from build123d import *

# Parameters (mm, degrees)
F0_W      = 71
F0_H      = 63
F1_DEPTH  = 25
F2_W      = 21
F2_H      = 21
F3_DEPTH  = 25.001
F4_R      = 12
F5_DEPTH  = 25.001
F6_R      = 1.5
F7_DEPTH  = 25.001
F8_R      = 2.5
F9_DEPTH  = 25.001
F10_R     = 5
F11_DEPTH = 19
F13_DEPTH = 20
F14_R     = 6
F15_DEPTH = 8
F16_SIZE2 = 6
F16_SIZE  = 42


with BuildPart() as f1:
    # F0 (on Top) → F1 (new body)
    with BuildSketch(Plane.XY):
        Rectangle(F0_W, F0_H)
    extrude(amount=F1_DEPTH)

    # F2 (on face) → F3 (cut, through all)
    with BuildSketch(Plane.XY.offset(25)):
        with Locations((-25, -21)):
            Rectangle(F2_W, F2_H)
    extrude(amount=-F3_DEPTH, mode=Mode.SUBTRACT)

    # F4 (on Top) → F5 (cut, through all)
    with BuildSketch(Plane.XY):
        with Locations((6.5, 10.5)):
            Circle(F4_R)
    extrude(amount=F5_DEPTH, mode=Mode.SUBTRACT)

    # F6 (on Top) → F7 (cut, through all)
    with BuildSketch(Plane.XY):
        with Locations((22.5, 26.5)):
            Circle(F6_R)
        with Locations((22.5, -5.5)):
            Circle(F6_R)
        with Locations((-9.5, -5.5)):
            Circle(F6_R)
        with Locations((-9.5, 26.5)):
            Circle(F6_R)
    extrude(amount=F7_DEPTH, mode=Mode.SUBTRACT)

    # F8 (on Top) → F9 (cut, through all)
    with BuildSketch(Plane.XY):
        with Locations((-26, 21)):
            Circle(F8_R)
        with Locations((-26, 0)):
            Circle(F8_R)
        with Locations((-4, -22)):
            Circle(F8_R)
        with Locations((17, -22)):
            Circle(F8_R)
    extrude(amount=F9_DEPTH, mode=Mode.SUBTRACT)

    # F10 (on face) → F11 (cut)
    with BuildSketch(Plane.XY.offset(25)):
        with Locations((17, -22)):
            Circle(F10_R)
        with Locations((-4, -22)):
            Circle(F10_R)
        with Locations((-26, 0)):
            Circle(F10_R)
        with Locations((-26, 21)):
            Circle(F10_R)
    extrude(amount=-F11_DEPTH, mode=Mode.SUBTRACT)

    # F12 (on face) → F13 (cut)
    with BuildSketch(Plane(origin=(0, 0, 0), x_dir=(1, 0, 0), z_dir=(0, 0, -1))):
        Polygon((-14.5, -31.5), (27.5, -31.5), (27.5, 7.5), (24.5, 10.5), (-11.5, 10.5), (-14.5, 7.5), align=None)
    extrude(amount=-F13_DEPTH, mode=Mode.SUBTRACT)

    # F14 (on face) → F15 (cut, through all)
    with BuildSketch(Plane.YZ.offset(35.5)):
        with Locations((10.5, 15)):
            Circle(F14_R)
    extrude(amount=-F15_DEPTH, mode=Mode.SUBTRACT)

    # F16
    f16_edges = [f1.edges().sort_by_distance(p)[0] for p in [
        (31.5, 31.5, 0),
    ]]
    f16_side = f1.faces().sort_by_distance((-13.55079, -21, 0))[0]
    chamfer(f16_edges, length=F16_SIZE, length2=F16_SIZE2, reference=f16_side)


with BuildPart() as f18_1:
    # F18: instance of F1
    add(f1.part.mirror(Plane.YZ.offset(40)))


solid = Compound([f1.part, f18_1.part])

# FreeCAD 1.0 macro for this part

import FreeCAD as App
import Part
import Sketcher
from FreeCAD import Vector
Q = App.Units.Quantity


def edges_at(feature, points):
    """Names of the edges that pass closest to the given points."""
    edges = feature.Shape.Edges
    near = lambda p: min(range(len(edges)), key=lambda i: edges[i].distToShape(Part.Vertex(*p))[0])
    return sorted({f"Edge{near(p) + 1}" for p in points})

doc = App.newDocument("Part")
body = doc.addObject("PartDesign::Body", "Body")

sketch1 = body.newObject("Sketcher::SketchObject", "Sketch")
sketch1.AttachmentSupport = (doc.getObject("XY_Plane"), [""])
sketch1.MapMode = "FlatFace"
sketch1.addGeometry([
    Part.LineSegment(Vector(-36, 32, 0), Vector(-36, -32, 0)),
    Part.LineSegment(Vector(-36, -32, 0), Vector(36, -32, 0)),
    Part.LineSegment(Vector(36, -32, 0), Vector(36, 32, 0)),
    Part.LineSegment(Vector(36, 32, 0), Vector(-36, 32, 0)),
], False)
sketch1.addConstraint([
    Sketcher.Constraint("Coincident", 0, 2, 1, 1),
    Sketcher.Constraint("Coincident", 1, 2, 2, 1),
    Sketcher.Constraint("Coincident", 2, 2, 3, 1),
    Sketcher.Constraint("Coincident", 3, 2, 0, 1),
    Sketcher.Constraint("Vertical", 0),
    Sketcher.Constraint("Horizontal", 1),
    Sketcher.Constraint("Vertical", 2),
    Sketcher.Constraint("Horizontal", 3),
    Sketcher.Constraint("Symmetric", 0, 2, 2, 2, -1, 1),
    Sketcher.Constraint("DistanceX", 1, 1, 1, 2, Q("71 mm")),
    Sketcher.Constraint("DistanceY", 0, 2, 0, 1, Q("63 mm")),
])
pad1 = body.newObject("PartDesign::Pad", "Pad")
pad1.Profile = sketch1
pad1.Length = 25

sketch2 = body.newObject("Sketcher::SketchObject", "Sketch001")
sketch2.AttachmentSupport = (doc.getObject("XY_Plane"), [""])
sketch2.MapMode = "FlatFace"
sketch2.AttachmentOffset = App.Placement(Vector(0, 0, 25), App.Rotation())
sketch2.addGeometry([
    Part.LineSegment(Vector(-36, -10, 0), Vector(-36, -32, 0)),
    Part.LineSegment(Vector(-36, -32, 0), Vector(-14, -32, 0)),
    Part.LineSegment(Vector(-14, -32, 0), Vector(-14, -10, 0)),
    Part.LineSegment(Vector(-14, -10, 0), Vector(-36, -10, 0)),
], False)
sketch2.addConstraint([
    Sketcher.Constraint("Coincident", 0, 2, 1, 1),
    Sketcher.Constraint("Coincident", 1, 2, 2, 1),
    Sketcher.Constraint("Coincident", 2, 2, 3, 1),
    Sketcher.Constraint("Coincident", 3, 2, 0, 1),
    Sketcher.Constraint("Vertical", 0),
    Sketcher.Constraint("Horizontal", 1),
    Sketcher.Constraint("Vertical", 2),
    Sketcher.Constraint("Horizontal", 3),
    Sketcher.Constraint("Equal", 3, 0),
    Sketcher.Constraint("DistanceX", 1, 1, 1, 2, Q("21 mm")),
    Sketcher.Constraint("DistanceX", 0, 2, -1, 1, Q("35.5 mm")),
    Sketcher.Constraint("DistanceY", 0, 2, -1, 1, Q("31.5 mm")),
])
pocket1 = body.newObject("PartDesign::Pocket", "Pocket")
pocket1.Profile = sketch2
pocket1.Type = "ThroughAll"

sketch3 = body.newObject("Sketcher::SketchObject", "Sketch002")
sketch3.AttachmentSupport = (doc.getObject("XY_Plane"), [""])
sketch3.MapMode = "FlatFace"
sketch3.addGeometry(Part.Circle(Vector(6, 10, 0), Vector(0, 0, 1), 12), False)
sketch3.addConstraint([
    Sketcher.Constraint("Diameter", 0, Q("24 mm")),
    Sketcher.Constraint("DistanceX", -1, 1, 0, 3, Q("6.5 mm")),
    Sketcher.Constraint("DistanceY", -1, 1, 0, 3, Q("10.5 mm")),
])
pocket2 = body.newObject("PartDesign::Pocket", "Pocket001")
pocket2.Profile = sketch3
pocket2.Type = "ThroughAll"
pocket2.Reversed = True

sketch4 = body.newObject("Sketcher::SketchObject", "Sketch003")
sketch4.AttachmentSupport = (doc.getObject("XY_Plane"), [""])
sketch4.MapMode = "FlatFace"
sketch4.addGeometry([
    Part.Circle(Vector(22.5, 26.5, 0), Vector(0, 0, 1), 1.5),
    Part.Circle(Vector(22.5, -5.5, 0), Vector(0, 0, 1), 1.5),
    Part.Circle(Vector(-9.5, -5.5, 0), Vector(0, 0, 1), 1.5),
    Part.Circle(Vector(-9.5, 26.5, 0), Vector(0, 0, 1), 1.5),
], False)
sketch4.addConstraint([
    Sketcher.Constraint("Equal", 0, 1),
    Sketcher.Constraint("Equal", 1, 2),
    Sketcher.Constraint("Equal", 2, 3),
    Sketcher.Constraint("Horizontal", 1, 3, 2, 3),
    Sketcher.Constraint("Horizontal", 0, 3, 3, 3),
    Sketcher.Constraint("Vertical", 0, 3, 1, 3),
    Sketcher.Constraint("Vertical", 2, 3, 3, 3),
    Sketcher.Constraint("Diameter", 0, Q("3 mm")),
    Sketcher.Constraint("DistanceY", 1, 3, 0, 3, Q("32 mm")),
    Sketcher.Constraint("DistanceX", 2, 3, 1, 3, Q("32 mm")),
    Sketcher.Constraint("DistanceX", -1, 1, 0, 3, Q("22.5 mm")),
    Sketcher.Constraint("DistanceY", -1, 1, 0, 3, Q("26.5 mm")),
])
pocket3 = body.newObject("PartDesign::Pocket", "Pocket002")
pocket3.Profile = sketch4
pocket3.Type = "ThroughAll"
pocket3.Reversed = True

sketch5 = body.newObject("Sketcher::SketchObject", "Sketch004")
sketch5.AttachmentSupport = (doc.getObject("XY_Plane"), [""])
sketch5.MapMode = "FlatFace"
sketch5.addGeometry([
    Part.Circle(Vector(-26, 21, 0), Vector(0, 0, 1), 2.5),
    Part.Circle(Vector(-26, 0, 0), Vector(0, 0, 1), 2.5),
    Part.Circle(Vector(-4, -22, 0), Vector(0, 0, 1), 2.5),
    Part.Circle(Vector(17, -22, 0), Vector(0, 0, 1), 2.5),
], False)
sketch5.addConstraint([
    Sketcher.Constraint("Equal", 0, 1),
    Sketcher.Constraint("Equal", 1, 2),
    Sketcher.Constraint("Equal", 2, 3),
    Sketcher.Constraint("PointOnObject", 1, 3, -1),
    Sketcher.Constraint("Horizontal", 2, 3, 3, 3),
    Sketcher.Constraint("Vertical", 0, 3, 1, 3),
    Sketcher.Constraint("Diameter", 0, Q("5 mm")),
    Sketcher.Constraint("DistanceX", 0, 3, -1, 1, Q("26 mm")),
    Sketcher.Constraint("DistanceY", -1, 1, 0, 3, Q("21 mm")),
    Sketcher.Constraint("DistanceX", 2, 3, -1, 1, Q("4 mm")),
    Sketcher.Constraint("DistanceY", 2, 3, -1, 1, Q("22 mm")),
    Sketcher.Constraint("DistanceX", -1, 1, 3, 3, Q("17 mm")),
])
pocket4 = body.newObject("PartDesign::Pocket", "Pocket003")
pocket4.Profile = sketch5
pocket4.Type = "ThroughAll"
pocket4.Reversed = True

sketch6 = body.newObject("Sketcher::SketchObject", "Sketch005")
sketch6.AttachmentSupport = (doc.getObject("XY_Plane"), [""])
sketch6.MapMode = "FlatFace"
sketch6.AttachmentOffset = App.Placement(Vector(0, 0, 25), App.Rotation())
sketch6.addGeometry([
    Part.Circle(Vector(17, -22, 0), Vector(0, 0, 1), 5),
    Part.Circle(Vector(-4, -22, 0), Vector(0, 0, 1), 5),
    Part.Circle(Vector(-26, 0, 0), Vector(0, 0, 1), 5),
    Part.Circle(Vector(-26, 21, 0), Vector(0, 0, 1), 5),
], False)
sketch6.addConstraint([
    Sketcher.Constraint("Equal", 0, 1),
    Sketcher.Constraint("Equal", 1, 2),
    Sketcher.Constraint("Equal", 2, 3),
    Sketcher.Constraint("PointOnObject", 2, 3, -1),
    Sketcher.Constraint("Horizontal", 0, 3, 1, 3),
    Sketcher.Constraint("Vertical", 2, 3, 3, 3),
    Sketcher.Constraint("Diameter", 0, Q("10 mm")),
    Sketcher.Constraint("DistanceX", -1, 1, 0, 3, Q("17 mm")),
    Sketcher.Constraint("DistanceY", 0, 3, -1, 1, Q("22 mm")),
    Sketcher.Constraint("DistanceX", 1, 3, -1, 1, Q("4 mm")),
    Sketcher.Constraint("DistanceX", 2, 3, -1, 1, Q("26 mm")),
    Sketcher.Constraint("DistanceY", -1, 1, 3, 3, Q("21 mm")),
])
pocket5 = body.newObject("PartDesign::Pocket", "Pocket004")
pocket5.Profile = sketch6
pocket5.Length = 19

sketch7 = body.newObject("Sketcher::SketchObject", "Sketch006")
sketch7.AttachmentSupport = (doc.getObject("XY_Plane"), [""])
sketch7.MapMode = "FlatFace"
sketch7.addGeometry([
    Part.LineSegment(Vector(-14.5, 31.5, 0), Vector(27.5, 31.5, 0)),
    Part.LineSegment(Vector(27.5, 31.5, 0), Vector(27.5, -7.5, 0)),
    Part.LineSegment(Vector(27.5, -7.5, 0), Vector(24.5, -10.5, 0)),
    Part.LineSegment(Vector(24.5, -10.5, 0), Vector(-11.5, -10.5, 0)),
    Part.LineSegment(Vector(-11.5, -10.5, 0), Vector(-14.5, -7.5, 0)),
    Part.LineSegment(Vector(-14.5, -7.5, 0), Vector(-14.5, 31.5, 0)),
], False)
sketch7.addConstraint([
    Sketcher.Constraint("Coincident", 0, 2, 1, 1),
    Sketcher.Constraint("Coincident", 1, 2, 2, 1),
    Sketcher.Constraint("Coincident", 2, 2, 3, 1),
    Sketcher.Constraint("Coincident", 3, 2, 4, 1),
    Sketcher.Constraint("Coincident", 4, 2, 5, 1),
    Sketcher.Constraint("Coincident", 5, 2, 0, 1),
    Sketcher.Constraint("Horizontal", 0),
    Sketcher.Constraint("Vertical", 1),
    Sketcher.Constraint("Horizontal", 3),
    Sketcher.Constraint("Vertical", 5),
    Sketcher.Constraint("Perpendicular", 2, 4),
    Sketcher.Constraint("Horizontal", 1, 2, 4, 2),
    Sketcher.Constraint("Equal", 2, 4),
    Sketcher.Constraint("DistanceX", 0, 1, 0, 2, Q("42 mm")),
    Sketcher.Constraint("DistanceX", 3, 2, 3, 1, Q("36 mm")),
    Sketcher.Constraint("DistanceY", 1, 2, 1, 1, Q("39 mm")),
    Sketcher.Constraint("DistanceX", -1, 1, 0, 2, Q("27.5 mm")),
    Sketcher.Constraint("DistanceY", -1, 1, 0, 2, Q("31.5 mm")),
])
pocket6 = body.newObject("PartDesign::Pocket", "Pocket005")
pocket6.Profile = sketch7
pocket6.Length = 20
pocket6.Reversed = True

sketch8 = body.newObject("Sketcher::SketchObject", "Sketch007")
sketch8.AttachmentSupport = (doc.getObject("YZ_Plane"), [""])
sketch8.MapMode = "FlatFace"
sketch8.AttachmentOffset = App.Placement(Vector(0, 0, 35.5), App.Rotation())
sketch8.addGeometry(Part.Circle(Vector(10, 15, 0), Vector(0, 0, 1), 6), False)
sketch8.addConstraint([
    Sketcher.Constraint("Diameter", 0, Q("12 mm")),
    Sketcher.Constraint("DistanceY", -1, 1, 0, 3, Q("15 mm")),
    Sketcher.Constraint("DistanceX", -1, 1, 0, 3, Q("10.5 mm")),
])
pocket7 = body.newObject("PartDesign::Pocket", "Pocket006")
pocket7.Profile = sketch8
pocket7.Length = 8
doc.recompute()

chamfer = body.newObject("PartDesign::Chamfer", "Chamfer")
chamfer.Base = (pocket7, edges_at(pocket7, [(31.5, 31.5, 0)]))
chamfer.ChamferType = "Two distances"
chamfer.Size = 42
chamfer.Size2 = 6
body2 = doc.addObject("PartDesign::Body", "Body001")
doc.recompute()

mirroring = doc.addObject("Part::Mirroring", "Mirroring")
mirroring.Source = body
mirroring.Base = Vector(40, 0, 0)
mirroring.Normal = Vector(1, 0, 0)
body2.BaseFeature = mirroring
doc.recompute()
mirroring.Visibility = False

doc.recompute()
